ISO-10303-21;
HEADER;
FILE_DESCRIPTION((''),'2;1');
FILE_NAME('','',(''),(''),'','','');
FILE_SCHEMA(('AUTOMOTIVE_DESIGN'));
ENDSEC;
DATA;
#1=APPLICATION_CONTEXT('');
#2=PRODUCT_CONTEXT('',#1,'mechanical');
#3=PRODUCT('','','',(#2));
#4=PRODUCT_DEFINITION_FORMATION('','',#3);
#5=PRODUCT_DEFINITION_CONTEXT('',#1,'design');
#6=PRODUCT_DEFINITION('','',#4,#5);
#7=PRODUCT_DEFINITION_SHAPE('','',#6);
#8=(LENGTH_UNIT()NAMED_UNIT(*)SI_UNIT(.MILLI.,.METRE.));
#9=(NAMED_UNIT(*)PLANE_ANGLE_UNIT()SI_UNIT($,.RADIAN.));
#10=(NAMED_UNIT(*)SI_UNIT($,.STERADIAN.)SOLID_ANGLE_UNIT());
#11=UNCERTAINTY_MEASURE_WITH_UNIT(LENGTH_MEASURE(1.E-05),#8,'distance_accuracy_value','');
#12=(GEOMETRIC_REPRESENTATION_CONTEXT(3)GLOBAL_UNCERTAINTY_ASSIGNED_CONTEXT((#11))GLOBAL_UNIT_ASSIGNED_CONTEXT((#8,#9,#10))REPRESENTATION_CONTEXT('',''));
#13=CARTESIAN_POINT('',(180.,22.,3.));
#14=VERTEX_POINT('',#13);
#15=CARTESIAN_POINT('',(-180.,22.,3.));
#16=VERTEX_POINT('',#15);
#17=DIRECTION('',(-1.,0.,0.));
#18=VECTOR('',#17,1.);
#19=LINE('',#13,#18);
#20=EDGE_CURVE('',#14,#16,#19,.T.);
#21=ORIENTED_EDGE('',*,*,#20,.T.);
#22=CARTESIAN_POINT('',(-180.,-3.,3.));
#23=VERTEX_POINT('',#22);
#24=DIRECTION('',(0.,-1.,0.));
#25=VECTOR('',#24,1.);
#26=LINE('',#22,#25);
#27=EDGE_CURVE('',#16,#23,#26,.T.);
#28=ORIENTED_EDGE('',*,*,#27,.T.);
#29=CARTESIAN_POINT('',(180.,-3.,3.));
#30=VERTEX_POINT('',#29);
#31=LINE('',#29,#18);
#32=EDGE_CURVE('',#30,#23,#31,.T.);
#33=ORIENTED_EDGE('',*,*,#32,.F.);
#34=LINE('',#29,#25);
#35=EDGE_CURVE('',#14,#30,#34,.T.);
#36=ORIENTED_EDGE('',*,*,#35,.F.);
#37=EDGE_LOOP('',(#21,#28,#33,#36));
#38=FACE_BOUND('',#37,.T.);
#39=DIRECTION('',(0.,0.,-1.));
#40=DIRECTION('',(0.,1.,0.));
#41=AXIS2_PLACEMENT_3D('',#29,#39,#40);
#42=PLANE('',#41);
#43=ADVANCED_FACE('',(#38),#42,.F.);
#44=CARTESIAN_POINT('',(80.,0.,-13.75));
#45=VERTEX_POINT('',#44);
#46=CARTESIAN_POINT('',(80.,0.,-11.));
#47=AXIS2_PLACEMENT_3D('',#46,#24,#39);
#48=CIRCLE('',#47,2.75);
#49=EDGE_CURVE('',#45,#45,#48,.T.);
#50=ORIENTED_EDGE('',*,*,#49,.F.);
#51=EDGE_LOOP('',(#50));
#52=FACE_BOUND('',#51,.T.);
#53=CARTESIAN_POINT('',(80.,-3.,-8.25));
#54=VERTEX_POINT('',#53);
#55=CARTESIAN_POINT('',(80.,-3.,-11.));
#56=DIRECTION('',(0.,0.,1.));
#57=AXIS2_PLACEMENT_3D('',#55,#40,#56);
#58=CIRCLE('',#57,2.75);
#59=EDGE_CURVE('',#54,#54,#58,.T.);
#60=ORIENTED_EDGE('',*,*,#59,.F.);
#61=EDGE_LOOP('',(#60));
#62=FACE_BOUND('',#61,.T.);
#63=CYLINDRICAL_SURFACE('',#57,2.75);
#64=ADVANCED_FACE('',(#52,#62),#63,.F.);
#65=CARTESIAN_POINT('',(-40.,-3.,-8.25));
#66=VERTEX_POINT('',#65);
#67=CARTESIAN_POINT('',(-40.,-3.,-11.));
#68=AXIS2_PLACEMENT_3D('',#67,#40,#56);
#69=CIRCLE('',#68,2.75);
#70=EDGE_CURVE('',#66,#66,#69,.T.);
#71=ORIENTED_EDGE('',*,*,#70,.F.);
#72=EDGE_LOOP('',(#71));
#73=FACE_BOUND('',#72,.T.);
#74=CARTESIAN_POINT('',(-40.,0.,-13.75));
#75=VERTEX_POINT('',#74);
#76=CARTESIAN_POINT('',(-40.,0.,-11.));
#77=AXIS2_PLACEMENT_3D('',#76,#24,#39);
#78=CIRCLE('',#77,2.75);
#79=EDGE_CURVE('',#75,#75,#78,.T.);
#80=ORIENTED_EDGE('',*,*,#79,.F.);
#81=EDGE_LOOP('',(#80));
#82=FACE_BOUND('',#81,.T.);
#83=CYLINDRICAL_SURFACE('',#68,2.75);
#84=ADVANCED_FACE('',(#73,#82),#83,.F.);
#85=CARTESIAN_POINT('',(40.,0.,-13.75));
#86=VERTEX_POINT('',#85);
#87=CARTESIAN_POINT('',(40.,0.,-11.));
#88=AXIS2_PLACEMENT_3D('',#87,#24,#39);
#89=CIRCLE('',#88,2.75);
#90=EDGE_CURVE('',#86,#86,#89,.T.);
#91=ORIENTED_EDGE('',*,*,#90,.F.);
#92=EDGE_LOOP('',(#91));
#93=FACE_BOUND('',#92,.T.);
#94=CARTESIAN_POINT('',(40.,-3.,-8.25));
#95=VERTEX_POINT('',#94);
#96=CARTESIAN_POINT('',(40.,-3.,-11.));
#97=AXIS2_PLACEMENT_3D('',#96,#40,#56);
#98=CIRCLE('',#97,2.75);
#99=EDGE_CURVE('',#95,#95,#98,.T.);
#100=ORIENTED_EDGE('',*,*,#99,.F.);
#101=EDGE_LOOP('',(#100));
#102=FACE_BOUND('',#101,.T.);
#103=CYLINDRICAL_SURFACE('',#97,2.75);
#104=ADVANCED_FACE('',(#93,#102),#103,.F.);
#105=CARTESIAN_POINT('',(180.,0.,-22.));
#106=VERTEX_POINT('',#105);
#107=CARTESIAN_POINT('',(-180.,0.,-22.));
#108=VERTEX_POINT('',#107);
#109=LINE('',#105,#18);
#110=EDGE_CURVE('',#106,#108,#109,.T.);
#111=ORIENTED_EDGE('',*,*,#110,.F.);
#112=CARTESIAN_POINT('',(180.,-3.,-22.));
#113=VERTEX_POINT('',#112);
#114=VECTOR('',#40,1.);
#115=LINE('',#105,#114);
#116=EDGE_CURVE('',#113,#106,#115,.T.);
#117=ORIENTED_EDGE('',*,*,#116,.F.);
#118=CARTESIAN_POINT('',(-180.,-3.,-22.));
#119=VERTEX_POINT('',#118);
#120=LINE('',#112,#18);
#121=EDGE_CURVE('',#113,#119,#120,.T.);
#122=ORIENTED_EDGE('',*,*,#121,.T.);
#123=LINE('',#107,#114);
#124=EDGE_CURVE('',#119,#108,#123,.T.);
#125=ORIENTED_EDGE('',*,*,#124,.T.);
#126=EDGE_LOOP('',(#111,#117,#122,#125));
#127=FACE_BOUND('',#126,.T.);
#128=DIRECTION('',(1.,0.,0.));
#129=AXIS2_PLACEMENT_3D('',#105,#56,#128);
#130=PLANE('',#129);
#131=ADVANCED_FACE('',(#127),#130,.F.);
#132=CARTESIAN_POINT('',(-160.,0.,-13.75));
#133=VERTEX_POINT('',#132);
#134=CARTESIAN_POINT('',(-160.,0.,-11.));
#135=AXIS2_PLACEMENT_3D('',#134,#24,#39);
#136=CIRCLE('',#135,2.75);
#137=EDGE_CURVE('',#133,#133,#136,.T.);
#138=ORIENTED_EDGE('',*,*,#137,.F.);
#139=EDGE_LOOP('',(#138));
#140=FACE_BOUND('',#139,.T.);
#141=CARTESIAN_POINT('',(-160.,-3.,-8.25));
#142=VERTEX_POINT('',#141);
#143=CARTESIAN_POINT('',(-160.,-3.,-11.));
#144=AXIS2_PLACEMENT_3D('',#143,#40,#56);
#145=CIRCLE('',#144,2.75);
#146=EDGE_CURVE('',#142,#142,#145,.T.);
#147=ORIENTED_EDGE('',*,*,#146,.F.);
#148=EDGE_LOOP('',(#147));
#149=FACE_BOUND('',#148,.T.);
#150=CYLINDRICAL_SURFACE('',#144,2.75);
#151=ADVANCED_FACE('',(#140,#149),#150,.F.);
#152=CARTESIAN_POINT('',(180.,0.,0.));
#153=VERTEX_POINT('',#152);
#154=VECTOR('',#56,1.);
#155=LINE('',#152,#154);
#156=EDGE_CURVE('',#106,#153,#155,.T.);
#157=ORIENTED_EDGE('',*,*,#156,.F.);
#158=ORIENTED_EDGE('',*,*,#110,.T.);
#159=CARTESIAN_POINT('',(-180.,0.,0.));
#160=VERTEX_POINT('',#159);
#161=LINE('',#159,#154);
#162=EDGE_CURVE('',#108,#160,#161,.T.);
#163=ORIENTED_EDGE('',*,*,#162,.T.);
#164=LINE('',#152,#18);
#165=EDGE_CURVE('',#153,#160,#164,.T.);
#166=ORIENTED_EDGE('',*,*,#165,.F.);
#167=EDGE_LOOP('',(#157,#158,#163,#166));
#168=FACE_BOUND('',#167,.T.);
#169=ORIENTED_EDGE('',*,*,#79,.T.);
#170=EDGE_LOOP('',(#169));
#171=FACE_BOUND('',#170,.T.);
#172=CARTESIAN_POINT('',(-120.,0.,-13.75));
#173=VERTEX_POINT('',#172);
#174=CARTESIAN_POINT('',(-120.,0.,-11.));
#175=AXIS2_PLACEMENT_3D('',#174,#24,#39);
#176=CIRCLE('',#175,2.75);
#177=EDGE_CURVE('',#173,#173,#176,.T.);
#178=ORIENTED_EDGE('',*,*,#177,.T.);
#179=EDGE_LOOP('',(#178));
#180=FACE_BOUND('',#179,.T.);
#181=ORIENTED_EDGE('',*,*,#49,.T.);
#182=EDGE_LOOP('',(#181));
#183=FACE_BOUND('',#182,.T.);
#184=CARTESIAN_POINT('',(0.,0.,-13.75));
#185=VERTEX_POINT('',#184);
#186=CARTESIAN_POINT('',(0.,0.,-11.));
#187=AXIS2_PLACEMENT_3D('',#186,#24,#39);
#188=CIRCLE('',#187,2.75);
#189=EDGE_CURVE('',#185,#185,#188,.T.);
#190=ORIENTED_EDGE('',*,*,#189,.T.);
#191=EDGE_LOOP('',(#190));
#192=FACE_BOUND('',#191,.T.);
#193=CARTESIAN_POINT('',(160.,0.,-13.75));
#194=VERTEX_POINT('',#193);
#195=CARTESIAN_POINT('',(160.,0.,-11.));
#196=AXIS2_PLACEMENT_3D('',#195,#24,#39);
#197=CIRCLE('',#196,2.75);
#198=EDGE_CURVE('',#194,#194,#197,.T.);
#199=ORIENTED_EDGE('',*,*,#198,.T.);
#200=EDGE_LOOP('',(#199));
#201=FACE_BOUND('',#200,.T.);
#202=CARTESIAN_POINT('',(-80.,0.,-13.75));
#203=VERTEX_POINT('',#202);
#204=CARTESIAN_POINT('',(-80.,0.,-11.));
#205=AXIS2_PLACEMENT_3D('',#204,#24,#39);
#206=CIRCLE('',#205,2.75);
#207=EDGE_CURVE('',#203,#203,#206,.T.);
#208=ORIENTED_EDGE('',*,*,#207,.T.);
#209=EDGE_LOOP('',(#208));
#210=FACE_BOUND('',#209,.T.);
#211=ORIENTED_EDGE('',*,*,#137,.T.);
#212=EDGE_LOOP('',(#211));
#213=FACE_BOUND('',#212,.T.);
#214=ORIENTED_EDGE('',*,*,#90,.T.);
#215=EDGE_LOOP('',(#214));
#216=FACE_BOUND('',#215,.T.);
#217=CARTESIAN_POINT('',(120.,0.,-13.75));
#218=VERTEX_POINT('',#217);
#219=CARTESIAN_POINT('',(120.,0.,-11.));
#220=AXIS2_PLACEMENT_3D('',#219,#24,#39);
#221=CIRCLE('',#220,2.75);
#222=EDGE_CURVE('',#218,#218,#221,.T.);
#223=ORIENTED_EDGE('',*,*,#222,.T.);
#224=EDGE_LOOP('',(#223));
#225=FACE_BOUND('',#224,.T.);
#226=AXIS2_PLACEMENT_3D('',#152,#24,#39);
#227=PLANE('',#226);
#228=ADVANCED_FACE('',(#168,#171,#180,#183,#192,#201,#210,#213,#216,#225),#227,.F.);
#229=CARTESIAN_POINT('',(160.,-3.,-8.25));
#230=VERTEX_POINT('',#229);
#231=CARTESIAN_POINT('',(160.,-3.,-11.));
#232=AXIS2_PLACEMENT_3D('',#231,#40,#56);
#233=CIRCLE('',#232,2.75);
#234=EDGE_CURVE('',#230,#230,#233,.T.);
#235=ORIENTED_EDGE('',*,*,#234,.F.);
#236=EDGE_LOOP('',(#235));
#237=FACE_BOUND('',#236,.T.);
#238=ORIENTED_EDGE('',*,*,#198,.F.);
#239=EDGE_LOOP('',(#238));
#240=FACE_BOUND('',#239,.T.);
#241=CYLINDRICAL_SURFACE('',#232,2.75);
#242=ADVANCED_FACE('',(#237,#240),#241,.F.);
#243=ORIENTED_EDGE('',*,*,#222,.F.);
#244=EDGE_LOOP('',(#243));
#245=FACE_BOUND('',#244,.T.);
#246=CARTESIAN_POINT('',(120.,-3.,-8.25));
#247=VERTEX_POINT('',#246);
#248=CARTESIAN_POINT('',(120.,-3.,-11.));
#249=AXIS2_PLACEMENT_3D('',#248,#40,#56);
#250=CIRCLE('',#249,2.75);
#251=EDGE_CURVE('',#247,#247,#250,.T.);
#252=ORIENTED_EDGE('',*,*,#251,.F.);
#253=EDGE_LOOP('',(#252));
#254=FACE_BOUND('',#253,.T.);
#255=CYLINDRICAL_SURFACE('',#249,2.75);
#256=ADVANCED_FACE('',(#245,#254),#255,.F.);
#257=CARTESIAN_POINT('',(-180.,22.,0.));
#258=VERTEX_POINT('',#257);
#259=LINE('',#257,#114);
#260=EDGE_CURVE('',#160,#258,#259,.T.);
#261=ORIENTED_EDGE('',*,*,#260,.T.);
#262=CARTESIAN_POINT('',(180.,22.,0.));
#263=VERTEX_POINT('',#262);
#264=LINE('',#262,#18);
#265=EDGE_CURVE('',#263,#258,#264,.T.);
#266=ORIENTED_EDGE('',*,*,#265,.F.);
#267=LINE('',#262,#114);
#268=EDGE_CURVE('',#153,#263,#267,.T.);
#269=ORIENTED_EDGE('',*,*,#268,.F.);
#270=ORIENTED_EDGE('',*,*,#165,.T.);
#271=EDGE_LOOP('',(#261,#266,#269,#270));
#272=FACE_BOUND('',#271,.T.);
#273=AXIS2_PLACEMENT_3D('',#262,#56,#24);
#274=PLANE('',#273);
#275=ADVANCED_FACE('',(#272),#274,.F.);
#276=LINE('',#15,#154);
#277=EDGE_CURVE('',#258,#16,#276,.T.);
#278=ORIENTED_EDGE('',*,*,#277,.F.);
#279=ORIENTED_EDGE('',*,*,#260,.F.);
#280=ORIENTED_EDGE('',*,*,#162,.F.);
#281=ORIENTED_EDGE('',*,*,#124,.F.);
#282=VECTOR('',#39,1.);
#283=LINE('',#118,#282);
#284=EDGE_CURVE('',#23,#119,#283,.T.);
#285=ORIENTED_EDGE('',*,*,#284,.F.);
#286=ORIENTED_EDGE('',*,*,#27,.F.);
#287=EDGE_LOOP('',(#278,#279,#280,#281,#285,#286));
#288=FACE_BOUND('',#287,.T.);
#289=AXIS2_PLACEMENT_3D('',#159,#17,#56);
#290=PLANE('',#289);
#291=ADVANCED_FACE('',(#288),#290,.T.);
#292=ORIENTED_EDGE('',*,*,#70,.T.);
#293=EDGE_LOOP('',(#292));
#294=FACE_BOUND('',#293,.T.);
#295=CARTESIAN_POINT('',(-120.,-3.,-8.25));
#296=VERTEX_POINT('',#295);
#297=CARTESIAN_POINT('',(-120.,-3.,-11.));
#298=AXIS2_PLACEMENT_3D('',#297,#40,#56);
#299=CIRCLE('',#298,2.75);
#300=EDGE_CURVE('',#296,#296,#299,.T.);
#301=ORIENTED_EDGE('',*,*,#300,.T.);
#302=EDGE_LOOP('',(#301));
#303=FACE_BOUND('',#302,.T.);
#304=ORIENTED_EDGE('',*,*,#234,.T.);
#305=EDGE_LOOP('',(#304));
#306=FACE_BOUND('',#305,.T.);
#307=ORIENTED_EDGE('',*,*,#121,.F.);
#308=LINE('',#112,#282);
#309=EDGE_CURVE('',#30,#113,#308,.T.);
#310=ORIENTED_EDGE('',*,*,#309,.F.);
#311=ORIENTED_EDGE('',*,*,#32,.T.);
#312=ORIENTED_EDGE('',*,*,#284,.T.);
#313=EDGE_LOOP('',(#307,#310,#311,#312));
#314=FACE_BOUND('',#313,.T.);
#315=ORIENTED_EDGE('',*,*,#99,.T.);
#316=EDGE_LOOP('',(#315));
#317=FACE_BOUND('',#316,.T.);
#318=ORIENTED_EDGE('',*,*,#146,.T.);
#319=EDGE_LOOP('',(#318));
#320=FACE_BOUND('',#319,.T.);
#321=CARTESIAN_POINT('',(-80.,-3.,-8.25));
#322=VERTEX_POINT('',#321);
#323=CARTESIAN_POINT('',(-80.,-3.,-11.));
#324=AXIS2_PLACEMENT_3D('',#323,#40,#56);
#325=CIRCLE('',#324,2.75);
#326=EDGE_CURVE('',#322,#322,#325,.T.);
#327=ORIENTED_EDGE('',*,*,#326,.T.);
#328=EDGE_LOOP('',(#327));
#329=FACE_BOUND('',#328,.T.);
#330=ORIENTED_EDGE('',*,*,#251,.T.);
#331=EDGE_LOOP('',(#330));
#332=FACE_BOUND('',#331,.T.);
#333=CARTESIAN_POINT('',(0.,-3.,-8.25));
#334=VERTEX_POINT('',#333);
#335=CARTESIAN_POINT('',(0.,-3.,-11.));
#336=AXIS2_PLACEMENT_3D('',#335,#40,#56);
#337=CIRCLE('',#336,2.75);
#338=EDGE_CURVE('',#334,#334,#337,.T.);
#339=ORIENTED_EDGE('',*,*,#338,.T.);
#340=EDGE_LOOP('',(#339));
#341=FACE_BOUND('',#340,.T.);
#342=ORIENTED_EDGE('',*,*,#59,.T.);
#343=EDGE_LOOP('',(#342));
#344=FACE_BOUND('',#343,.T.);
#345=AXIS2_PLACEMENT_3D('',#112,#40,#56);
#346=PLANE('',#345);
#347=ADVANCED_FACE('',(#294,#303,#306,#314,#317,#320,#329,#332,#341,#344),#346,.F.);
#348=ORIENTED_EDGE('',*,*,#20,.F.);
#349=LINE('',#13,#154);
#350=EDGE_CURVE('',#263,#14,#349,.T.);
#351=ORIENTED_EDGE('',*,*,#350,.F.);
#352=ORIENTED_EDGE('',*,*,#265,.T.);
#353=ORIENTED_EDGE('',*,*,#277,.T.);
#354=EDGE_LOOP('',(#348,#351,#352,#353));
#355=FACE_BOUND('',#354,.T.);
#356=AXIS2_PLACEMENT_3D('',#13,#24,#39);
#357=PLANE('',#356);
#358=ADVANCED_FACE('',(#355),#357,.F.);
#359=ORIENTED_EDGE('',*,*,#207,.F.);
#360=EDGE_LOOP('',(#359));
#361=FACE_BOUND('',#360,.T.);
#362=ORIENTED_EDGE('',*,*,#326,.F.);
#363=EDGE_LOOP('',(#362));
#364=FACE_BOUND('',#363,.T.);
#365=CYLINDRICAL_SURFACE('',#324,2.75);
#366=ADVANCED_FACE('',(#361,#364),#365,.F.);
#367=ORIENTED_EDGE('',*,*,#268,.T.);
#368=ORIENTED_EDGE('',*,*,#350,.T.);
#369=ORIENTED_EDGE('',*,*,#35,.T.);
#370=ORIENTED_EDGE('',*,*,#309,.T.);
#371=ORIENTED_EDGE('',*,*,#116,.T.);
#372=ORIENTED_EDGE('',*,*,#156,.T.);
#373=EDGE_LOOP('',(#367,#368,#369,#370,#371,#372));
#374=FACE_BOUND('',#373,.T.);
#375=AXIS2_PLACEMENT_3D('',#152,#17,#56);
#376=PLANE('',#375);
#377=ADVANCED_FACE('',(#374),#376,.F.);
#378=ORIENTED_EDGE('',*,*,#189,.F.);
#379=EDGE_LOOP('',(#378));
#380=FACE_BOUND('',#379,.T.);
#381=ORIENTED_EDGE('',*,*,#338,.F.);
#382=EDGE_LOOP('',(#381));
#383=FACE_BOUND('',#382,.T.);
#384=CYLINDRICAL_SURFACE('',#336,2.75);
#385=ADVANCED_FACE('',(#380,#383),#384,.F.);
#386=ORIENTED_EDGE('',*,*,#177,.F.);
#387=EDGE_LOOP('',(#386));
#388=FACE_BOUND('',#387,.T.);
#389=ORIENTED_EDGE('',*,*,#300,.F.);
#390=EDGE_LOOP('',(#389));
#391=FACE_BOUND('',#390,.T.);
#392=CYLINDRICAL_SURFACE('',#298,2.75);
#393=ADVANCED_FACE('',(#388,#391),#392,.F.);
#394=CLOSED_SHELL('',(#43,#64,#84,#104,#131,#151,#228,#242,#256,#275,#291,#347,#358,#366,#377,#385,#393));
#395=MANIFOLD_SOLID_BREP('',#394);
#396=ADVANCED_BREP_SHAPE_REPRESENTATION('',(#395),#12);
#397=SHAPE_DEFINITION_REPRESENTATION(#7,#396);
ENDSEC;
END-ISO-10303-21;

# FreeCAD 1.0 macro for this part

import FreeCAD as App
import Part
import Sketcher


def add_polygon(sketch, points):
    """Adds a closed chain of lines whose ends are joined by coincident constraints."""
    first, n = sketch.GeometryCount, len(points)
    for a, b in zip(points, points[1:] + points[:1]):
        sketch.addGeometry(Part.LineSegment(App.Vector(*a, 0), App.Vector(*b, 0)), False)
    for i in range(n):
        sketch.addConstraint(Sketcher.Constraint("Coincident", first + i, 2, first + (i + 1) % n, 1))

doc = App.newDocument("Part")
params = doc.addObject("Spreadsheet::Sheet", "Params")
for row, (alias, value) in enumerate([
    ("sketch1_width", "22 mm"),
    ("sketch1_width2", "25 mm"),
    ("pad1_length", "360 mm"),
    ("sketch2_diameter", "5.5 mm"),
], start=1):
    params.set(f"A{row}", alias)
    params.set(f"B{row}", "=" + value)
    params.setAlias(f"B{row}", alias)

body = doc.addObject("PartDesign::Body", "Body")

# Sketch on YZ plane
sketch1 = body.newObject("Sketcher::SketchObject", "Sketch")
sketch1.AttachmentSupport = (doc.getObject("YZ_Plane"), [""])
sketch1.MapMode = "FlatFace"
add_polygon(sketch1, [(0, 0), (22, 0), (22, 3), (-3, 3), (-3, -22), (0, -22)])  # lines 0-5
sketch1.addConstraint(Sketcher.Constraint("Horizontal", 0))
sketch1.addConstraint(Sketcher.Constraint("Vertical", 1))
sketch1.addConstraint(Sketcher.Constraint("Horizontal", 2))
sketch1.addConstraint(Sketcher.Constraint("Vertical", 3))
sketch1.addConstraint(Sketcher.Constraint("Horizontal", 4))
sketch1.addConstraint(Sketcher.Constraint("Vertical", 5))
sketch1.addConstraint(Sketcher.Constraint("Coincident", 5, 2, -1, 1))
sketch1.addConstraint(Sketcher.Constraint("Equal", 4, 1))
sketch1.addConstraint(Sketcher.Constraint("Equal", 2, 3))
sketch1.addConstraint(Sketcher.Constraint("DistanceX", 0, 1, 0, 2, 22.0))
sketch1.addConstraint(Sketcher.Constraint("DistanceX", 2, 2, 2, 1, 25.0))
sketch1.setExpression("Constraints[15]", "Params.sketch1_width")
sketch1.setExpression("Constraints[16]", "Params.sketch1_width2")
pad1 = body.newObject("PartDesign::Pad", "Pad")
pad1.Profile = sketch1
pad1.setExpression("Length", "Params.pad1_length")
pad1.Midplane = True

# Sketch on XZ plane
sketch2 = body.newObject("Sketcher::SketchObject", "Sketch001")
sketch2.AttachmentSupport = (doc.getObject("XZ_Plane"), [""])
sketch2.MapMode = "FlatFace"
sketch2.addGeometry(Part.Circle(App.Vector(-160, -11, 0), App.Vector(0, 0, 1), 2.75), False)
sketch2.addGeometry(Part.Circle(App.Vector(-120, -11, 0), App.Vector(0, 0, 1), 2.75), False)
sketch2.addGeometry(Part.Circle(App.Vector(-80, -11, 0), App.Vector(0, 0, 1), 2.75), False)
sketch2.addGeometry(Part.Circle(App.Vector(-40, -11, 0), App.Vector(0, 0, 1), 2.75), False)
sketch2.addGeometry(Part.Circle(App.Vector(0, -11, 0), App.Vector(0, 0, 1), 2.75), False)
sketch2.addGeometry(Part.Circle(App.Vector(40, -11, 0), App.Vector(0, 0, 1), 2.75), False)
sketch2.addGeometry(Part.Circle(App.Vector(80, -11, 0), App.Vector(0, 0, 1), 2.75), False)
sketch2.addGeometry(Part.Circle(App.Vector(120, -11, 0), App.Vector(0, 0, 1), 2.75), False)
sketch2.addGeometry(Part.Circle(App.Vector(160, -11, 0), App.Vector(0, 0, 1), 2.75), False)
sketch2.addConstraint(Sketcher.Constraint("Equal", 0, 1))
sketch2.addConstraint(Sketcher.Constraint("Equal", 1, 2))
sketch2.addConstraint(Sketcher.Constraint("Equal", 2, 3))
sketch2.addConstraint(Sketcher.Constraint("Equal", 3, 4))
sketch2.addConstraint(Sketcher.Constraint("Equal", 4, 5))
sketch2.addConstraint(Sketcher.Constraint("Equal", 5, 6))
sketch2.addConstraint(Sketcher.Constraint("Equal", 6, 7))
sketch2.addConstraint(Sketcher.Constraint("Equal", 7, 8))
sketch2.addConstraint(Sketcher.Constraint("Symmetric", 3, 3, 5, 3, -2))
sketch2.addConstraint(Sketcher.Constraint("Symmetric", 2, 3, 6, 3, -2))
sketch2.addConstraint(Sketcher.Constraint("Symmetric", 1, 3, 7, 3, -2))
sketch2.addConstraint(Sketcher.Constraint("Symmetric", 0, 3, 8, 3, -2))
sketch2.addConstraint(Sketcher.Constraint("PointOnObject", 4, 3, -2))
sketch2.addConstraint(Sketcher.Constraint("Horizontal", 0, 3, 1, 3))
sketch2.addConstraint(Sketcher.Constraint("Horizontal", 1, 3, 2, 3))
sketch2.addConstraint(Sketcher.Constraint("Horizontal", 2, 3, 3, 3))
sketch2.addConstraint(Sketcher.Constraint("Horizontal", 3, 3, 4, 3))
sketch2.addConstraint(Sketcher.Constraint("Diameter", 0, 5.5))
sketch2.addConstraint(Sketcher.Constraint("DistanceX", 0, 3, -1, 1, 160.0))
sketch2.addConstraint(Sketcher.Constraint("DistanceY", 0, 3, -1, 1, 11.0))
sketch2.addConstraint(Sketcher.Constraint("DistanceX", 1, 3, -1, 1, 120.0))
sketch2.addConstraint(Sketcher.Constraint("DistanceX", 2, 3, -1, 1, 80.0))
sketch2.addConstraint(Sketcher.Constraint("DistanceX", 3, 3, -1, 1, 40.0))
sketch2.setExpression("Constraints[17]", "Params.sketch2_diameter")
pocket1 = body.newObject("PartDesign::Pocket", "Pocket")
pocket1.Profile = sketch2
pocket1.Type = "ThroughAll"
pocket1.Midplane = True

doc.recompute()
